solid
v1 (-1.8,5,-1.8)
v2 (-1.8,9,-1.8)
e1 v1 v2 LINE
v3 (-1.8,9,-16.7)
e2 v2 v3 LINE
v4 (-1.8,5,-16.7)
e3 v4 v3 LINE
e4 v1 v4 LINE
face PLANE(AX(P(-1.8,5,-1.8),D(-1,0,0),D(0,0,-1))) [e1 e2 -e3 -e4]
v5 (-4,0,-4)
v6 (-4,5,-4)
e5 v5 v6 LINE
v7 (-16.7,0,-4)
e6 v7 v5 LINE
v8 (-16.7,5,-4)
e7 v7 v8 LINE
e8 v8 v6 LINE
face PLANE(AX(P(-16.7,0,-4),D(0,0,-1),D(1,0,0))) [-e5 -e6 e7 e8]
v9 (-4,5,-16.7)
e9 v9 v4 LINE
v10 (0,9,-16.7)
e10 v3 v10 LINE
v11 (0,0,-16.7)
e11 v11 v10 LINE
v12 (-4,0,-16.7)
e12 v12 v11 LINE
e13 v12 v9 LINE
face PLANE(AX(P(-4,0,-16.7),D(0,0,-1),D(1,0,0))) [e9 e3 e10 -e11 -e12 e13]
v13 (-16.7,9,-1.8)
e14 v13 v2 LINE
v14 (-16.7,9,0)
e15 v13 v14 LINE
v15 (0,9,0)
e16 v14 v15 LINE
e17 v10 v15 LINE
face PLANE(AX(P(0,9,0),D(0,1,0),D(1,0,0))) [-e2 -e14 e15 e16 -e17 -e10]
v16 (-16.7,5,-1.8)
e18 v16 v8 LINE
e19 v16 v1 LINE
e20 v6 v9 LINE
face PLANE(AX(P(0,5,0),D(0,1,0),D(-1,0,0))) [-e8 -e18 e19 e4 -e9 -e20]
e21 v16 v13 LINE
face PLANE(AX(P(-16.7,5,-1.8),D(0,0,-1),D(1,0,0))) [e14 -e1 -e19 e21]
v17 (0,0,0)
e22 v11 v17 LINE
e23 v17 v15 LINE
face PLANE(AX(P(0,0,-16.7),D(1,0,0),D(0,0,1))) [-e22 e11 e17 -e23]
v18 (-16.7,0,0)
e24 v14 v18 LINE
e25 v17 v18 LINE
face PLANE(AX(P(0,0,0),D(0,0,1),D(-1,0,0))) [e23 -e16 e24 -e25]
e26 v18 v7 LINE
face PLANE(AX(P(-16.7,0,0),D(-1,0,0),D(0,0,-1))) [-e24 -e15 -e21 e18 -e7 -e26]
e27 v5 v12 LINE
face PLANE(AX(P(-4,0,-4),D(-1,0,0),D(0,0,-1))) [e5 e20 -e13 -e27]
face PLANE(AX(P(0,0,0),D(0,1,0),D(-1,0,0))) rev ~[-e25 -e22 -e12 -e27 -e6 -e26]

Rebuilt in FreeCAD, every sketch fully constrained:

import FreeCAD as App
import Part
import Sketcher

doc = App.newDocument("Part")
body = doc.addObject("PartDesign::Body", "Body")

# Sketch on XZ plane
sketch1 = body.newObject("Sketcher::SketchObject", "Sketch")
sketch1.AttachmentSupport = (doc.getObject("XZ_Plane"), [""])
sketch1.MapMode = "FlatFace"
sketch1.addGeometry([
    Part.LineSegment(App.Vector(-16.7, 0, 0), App.Vector(0, 0, 0)),  # 0
    Part.LineSegment(App.Vector(0, 0, 0), App.Vector(0, -16.7, 0)),  # 1
    Part.LineSegment(App.Vector(0, -16.7, 0), App.Vector(-4, -16.7, 0)),  # 2
    Part.LineSegment(App.Vector(-4, -16.7, 0), App.Vector(-4, -4, 0)),  # 3
    Part.LineSegment(App.Vector(-4, -4, 0), App.Vector(-16.7, -4, 0)),  # 4
    Part.LineSegment(App.Vector(-16.7, -4, 0), App.Vector(-16.7, 0, 0)),  # 5
], False)
sketch1.addConstraint([
    Sketcher.Constraint("Coincident", 0, 2, 1, 1),
    Sketcher.Constraint("Coincident", 1, 2, 2, 1),
    Sketcher.Constraint("Coincident", 2, 2, 3, 1),
    Sketcher.Constraint("Coincident", 3, 2, 4, 1),
    Sketcher.Constraint("Coincident", 4, 2, 5, 1),
    Sketcher.Constraint("Coincident", 5, 2, 0, 1),
    Sketcher.Constraint("Horizontal", 0),
    Sketcher.Constraint("Vertical", 1),
    Sketcher.Constraint("Horizontal", 2),
    Sketcher.Constraint("Vertical", 3),
    Sketcher.Constraint("Horizontal", 4),
    Sketcher.Constraint("Vertical", 5),
    Sketcher.Constraint("Coincident", 0, 2, -1, 1),
    Sketcher.Constraint("Equal", 0, 1),
    Sketcher.Constraint("Equal", 4, 3),
    Sketcher.Constraint("DistanceX", 2, 2, 2, 1, 4.0),
    Sketcher.Constraint("DistanceX", 0, 1, 0, 2, 16.7),
])
pad1 = body.newObject("PartDesign::Pad", "Pad")
pad1.Profile = sketch1
pad1.Length = 5
pad1.Reversed = True

# Sketch on XZ plane
sketch2 = body.newObject("Sketcher::SketchObject", "Sketch001")
sketch2.AttachmentSupport = (doc.getObject("XZ_Plane"), [""])
sketch2.MapMode = "FlatFace"
sketch2.AttachmentOffset = App.Placement(App.Vector(0, 0, -5), App.Rotation())
sketch2.addGeometry([
    Part.LineSegment(App.Vector(-1.8, -1.8, 0), App.Vector(-16.7, -1.8, 0)),  # 0
    Part.LineSegment(App.Vector(-16.7, -1.8, 0), App.Vector(-16.7, 0, 0)),  # 1
    Part.LineSegment(App.Vector(-16.7, 0, 0), App.Vector(0, 0, 0)),  # 2
    Part.LineSegment(App.Vector(0, 0, 0), App.Vector(0, -16.7, 0)),  # 3
    Part.LineSegment(App.Vector(0, -16.7, 0), App.Vector(-1.8, -16.7, 0)),  # 4
    Part.LineSegment(App.Vector(-1.8, -16.7, 0), App.Vector(-1.8, -1.8, 0)),  # 5
], False)
sketch2.addConstraint([
    Sketcher.Constraint("Coincident", 0, 2, 1, 1),
    Sketcher.Constraint("Coincident", 1, 2, 2, 1),
    Sketcher.Constraint("Coincident", 2, 2, 3, 1),
    Sketcher.Constraint("Coincident", 3, 2, 4, 1),
    Sketcher.Constraint("Coincident", 4, 2, 5, 1),
    Sketcher.Constraint("Coincident", 5, 2, 0, 1),
    Sketcher.Constraint("Horizontal", 0),
    Sketcher.Constraint("Vertical", 1),
    Sketcher.Constraint("Horizontal", 2),
    Sketcher.Constraint("Vertical", 3),
    Sketcher.Constraint("Horizontal", 4),
    Sketcher.Constraint("Vertical", 5),
    Sketcher.Constraint("Coincident", 2, 2, -1, 1),
    Sketcher.Constraint("Equal", 4, 1),
    Sketcher.Constraint("Equal", 2, 3),
    Sketcher.Constraint("DistanceX", 2, 1, 2, 2, 16.7),
    Sketcher.Constraint("DistanceX", 4, 2, 4, 1, 1.8),
])
pad2 = body.newObject("PartDesign::Pad", "Pad001")
pad2.Profile = sketch2
pad2.Length = 4
pad2.Reversed = True

doc.recompute()
